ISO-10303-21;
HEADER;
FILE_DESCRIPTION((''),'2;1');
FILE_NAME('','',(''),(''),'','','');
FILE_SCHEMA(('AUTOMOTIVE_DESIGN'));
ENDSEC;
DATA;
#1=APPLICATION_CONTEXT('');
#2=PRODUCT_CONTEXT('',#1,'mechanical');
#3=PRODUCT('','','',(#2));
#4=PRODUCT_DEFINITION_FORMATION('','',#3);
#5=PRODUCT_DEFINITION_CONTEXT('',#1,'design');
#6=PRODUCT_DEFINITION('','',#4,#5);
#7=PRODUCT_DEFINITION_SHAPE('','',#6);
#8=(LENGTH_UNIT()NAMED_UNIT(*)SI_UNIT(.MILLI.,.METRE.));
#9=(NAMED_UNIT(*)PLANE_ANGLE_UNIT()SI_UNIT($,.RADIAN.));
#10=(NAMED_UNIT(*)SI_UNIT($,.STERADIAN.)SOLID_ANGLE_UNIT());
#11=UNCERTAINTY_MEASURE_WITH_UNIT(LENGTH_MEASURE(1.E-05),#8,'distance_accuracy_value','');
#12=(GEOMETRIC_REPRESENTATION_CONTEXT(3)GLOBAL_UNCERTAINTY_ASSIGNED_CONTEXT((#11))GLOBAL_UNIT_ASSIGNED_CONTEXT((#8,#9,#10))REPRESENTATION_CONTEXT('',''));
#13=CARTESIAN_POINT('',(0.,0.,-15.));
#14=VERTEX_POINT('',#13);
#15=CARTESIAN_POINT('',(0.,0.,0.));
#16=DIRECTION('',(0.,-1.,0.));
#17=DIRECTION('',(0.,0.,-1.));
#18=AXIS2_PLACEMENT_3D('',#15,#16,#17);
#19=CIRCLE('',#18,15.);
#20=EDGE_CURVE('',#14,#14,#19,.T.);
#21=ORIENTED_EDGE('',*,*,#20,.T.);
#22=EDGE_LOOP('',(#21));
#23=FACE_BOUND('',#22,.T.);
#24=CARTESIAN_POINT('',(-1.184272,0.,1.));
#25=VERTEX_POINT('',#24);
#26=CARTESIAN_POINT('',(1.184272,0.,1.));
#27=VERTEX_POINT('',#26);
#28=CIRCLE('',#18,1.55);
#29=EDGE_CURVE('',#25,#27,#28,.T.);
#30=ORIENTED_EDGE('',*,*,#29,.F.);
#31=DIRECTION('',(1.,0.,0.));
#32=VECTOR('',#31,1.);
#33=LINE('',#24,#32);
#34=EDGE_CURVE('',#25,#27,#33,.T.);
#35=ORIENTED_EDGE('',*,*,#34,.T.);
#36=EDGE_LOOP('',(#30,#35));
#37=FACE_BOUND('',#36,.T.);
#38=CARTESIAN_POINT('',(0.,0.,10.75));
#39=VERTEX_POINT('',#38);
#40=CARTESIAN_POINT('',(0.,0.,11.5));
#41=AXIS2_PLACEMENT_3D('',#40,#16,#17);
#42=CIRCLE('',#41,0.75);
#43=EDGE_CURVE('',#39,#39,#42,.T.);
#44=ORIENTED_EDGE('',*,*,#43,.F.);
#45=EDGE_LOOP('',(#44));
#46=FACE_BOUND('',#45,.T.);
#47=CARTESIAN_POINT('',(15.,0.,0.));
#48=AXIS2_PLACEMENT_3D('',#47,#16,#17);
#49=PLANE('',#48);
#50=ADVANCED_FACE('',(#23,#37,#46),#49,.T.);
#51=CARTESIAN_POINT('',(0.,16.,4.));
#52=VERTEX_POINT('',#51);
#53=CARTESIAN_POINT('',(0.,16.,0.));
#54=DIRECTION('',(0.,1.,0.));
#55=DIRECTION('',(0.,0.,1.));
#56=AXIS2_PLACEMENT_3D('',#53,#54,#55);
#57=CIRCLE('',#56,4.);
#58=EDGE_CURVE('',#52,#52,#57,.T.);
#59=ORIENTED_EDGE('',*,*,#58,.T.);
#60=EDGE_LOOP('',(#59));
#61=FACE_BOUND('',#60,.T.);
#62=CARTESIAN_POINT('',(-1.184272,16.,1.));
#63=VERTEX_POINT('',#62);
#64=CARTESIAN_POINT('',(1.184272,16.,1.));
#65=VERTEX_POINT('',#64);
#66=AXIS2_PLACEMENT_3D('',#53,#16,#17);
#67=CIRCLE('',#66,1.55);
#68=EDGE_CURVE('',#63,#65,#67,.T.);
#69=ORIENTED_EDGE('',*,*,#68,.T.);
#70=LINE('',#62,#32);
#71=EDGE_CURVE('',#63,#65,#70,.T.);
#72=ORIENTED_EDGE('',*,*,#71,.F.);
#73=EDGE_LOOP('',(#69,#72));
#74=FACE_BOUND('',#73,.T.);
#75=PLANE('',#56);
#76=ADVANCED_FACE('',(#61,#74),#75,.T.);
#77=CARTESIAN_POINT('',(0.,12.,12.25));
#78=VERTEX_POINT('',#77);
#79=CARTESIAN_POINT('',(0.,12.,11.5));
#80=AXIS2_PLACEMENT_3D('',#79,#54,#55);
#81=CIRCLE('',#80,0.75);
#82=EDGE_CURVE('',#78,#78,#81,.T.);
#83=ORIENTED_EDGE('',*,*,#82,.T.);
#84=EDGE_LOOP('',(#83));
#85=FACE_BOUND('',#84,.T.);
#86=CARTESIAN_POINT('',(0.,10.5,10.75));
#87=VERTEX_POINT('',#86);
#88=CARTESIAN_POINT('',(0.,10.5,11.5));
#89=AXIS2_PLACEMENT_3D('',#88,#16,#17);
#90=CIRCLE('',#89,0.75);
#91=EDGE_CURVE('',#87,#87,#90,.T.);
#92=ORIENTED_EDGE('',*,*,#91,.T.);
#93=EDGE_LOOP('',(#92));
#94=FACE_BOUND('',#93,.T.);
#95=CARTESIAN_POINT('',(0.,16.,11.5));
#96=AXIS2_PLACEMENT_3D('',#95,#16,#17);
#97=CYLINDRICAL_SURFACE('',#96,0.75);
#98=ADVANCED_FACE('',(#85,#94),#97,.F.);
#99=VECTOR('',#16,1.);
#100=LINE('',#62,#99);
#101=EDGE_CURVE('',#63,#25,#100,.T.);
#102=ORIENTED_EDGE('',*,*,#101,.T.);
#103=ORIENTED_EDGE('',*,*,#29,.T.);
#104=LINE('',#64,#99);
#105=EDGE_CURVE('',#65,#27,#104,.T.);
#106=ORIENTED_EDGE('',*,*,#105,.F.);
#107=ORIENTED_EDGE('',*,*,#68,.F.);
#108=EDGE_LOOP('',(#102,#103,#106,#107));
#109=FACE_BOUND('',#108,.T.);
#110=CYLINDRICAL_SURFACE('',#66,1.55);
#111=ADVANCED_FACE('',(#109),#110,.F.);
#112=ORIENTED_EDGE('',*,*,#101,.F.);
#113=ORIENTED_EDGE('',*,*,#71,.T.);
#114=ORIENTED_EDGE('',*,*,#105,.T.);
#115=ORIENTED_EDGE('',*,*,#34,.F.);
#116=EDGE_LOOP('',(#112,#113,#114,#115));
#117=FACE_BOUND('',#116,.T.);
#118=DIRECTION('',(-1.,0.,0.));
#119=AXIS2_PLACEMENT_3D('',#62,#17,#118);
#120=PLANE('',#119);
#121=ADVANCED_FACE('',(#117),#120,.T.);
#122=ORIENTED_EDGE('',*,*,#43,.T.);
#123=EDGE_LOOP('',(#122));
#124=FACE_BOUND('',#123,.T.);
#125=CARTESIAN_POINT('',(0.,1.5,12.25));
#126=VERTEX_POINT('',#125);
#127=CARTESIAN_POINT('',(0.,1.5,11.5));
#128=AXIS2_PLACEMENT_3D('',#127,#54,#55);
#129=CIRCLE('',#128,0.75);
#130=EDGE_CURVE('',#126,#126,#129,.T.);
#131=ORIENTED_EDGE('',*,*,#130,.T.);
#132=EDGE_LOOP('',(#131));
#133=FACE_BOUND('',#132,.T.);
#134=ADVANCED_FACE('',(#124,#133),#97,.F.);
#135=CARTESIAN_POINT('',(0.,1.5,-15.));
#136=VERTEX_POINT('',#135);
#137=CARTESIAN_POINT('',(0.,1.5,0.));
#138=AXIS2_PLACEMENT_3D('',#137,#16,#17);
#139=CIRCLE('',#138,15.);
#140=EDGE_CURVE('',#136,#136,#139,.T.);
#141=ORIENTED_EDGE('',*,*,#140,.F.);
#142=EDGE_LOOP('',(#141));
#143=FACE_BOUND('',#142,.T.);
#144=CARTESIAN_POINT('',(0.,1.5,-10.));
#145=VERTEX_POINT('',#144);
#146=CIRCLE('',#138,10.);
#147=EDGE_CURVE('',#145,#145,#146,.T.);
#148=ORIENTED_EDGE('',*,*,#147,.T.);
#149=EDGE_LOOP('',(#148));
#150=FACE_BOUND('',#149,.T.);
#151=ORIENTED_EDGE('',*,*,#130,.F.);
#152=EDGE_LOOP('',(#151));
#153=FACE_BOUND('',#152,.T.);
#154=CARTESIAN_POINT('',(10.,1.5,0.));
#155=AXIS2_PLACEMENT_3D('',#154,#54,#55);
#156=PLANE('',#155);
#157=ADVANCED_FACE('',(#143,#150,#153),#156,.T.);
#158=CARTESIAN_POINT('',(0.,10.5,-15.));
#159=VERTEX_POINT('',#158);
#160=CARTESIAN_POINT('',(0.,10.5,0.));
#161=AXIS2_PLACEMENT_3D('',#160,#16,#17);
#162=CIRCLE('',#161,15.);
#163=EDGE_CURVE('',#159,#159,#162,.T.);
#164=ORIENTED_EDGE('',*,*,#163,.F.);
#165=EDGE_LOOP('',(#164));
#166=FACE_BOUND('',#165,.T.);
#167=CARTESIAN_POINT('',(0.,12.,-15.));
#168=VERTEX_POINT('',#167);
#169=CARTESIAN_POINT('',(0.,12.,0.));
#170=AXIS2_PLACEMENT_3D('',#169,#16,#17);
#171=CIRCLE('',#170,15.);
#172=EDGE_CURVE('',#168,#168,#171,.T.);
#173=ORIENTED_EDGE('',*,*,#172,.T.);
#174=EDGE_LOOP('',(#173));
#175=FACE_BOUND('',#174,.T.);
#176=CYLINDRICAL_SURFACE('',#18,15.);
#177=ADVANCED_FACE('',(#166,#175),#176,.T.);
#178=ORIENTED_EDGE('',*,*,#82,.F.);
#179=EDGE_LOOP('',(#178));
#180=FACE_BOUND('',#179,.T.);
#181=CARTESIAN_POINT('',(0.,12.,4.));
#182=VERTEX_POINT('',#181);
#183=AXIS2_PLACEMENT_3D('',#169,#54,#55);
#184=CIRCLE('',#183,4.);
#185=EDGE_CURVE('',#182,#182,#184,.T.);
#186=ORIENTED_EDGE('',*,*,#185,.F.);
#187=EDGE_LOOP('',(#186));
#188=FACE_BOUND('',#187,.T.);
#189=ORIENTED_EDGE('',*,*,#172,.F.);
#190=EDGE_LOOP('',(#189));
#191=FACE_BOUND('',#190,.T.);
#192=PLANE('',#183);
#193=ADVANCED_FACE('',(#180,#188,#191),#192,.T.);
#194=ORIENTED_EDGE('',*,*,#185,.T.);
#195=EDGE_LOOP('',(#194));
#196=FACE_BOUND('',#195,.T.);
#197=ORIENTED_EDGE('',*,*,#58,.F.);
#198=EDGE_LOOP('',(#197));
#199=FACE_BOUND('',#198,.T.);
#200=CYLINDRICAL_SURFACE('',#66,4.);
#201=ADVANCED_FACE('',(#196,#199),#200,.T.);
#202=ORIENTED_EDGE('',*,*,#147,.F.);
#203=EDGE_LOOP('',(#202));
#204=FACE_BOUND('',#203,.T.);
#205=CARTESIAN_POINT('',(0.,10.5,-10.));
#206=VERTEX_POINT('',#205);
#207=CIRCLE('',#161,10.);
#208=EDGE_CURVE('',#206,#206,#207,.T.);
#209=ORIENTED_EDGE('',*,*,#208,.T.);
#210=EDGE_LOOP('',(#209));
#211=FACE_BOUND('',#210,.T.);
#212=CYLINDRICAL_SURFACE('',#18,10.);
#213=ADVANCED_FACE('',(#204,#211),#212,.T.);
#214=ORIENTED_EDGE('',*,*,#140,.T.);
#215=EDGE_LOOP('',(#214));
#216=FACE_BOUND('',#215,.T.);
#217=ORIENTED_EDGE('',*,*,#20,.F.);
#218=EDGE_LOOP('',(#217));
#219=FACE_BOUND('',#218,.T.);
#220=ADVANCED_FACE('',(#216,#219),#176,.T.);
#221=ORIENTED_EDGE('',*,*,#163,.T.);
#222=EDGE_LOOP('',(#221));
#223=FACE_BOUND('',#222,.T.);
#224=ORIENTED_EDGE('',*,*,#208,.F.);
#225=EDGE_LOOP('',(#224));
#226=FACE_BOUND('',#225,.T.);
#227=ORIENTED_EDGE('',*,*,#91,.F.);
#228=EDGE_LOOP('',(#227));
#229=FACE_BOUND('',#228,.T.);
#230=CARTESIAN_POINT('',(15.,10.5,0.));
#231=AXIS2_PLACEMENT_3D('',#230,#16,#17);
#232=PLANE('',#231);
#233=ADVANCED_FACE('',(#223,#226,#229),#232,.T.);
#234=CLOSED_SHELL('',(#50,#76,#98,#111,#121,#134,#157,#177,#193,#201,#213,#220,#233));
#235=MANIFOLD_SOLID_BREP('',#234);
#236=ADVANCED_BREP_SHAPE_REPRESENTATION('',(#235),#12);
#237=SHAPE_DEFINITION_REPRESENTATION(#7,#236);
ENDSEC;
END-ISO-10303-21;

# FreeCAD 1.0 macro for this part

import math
import FreeCAD as App
import Part
import Sketcher

V = App.Vector

doc = App.newDocument("Part")
body = doc.addObject("PartDesign::Body", "Body")

# Sketch on XY plane
sketch1 = doc.addObject("Sketcher::SketchObject", "Sketch")
body.addObject(sketch1)
sketch1.AttachmentSupport = (doc.XY_Plane, [""])
sketch1.MapMode = "FlatFace"
sketch1.addGeometry(Part.LineSegment(V(0, 12, 0), V(0, 0, 0)), False)
sketch1.addGeometry(Part.LineSegment(V(0, 0, 0), V(15, 0, 0)), False)
sketch1.addGeometry(Part.LineSegment(V(15, 0, 0), V(15, 1.5, 0)), False)
sketch1.addGeometry(Part.LineSegment(V(15, 1.5, 0), V(10, 1.5, 0)), False)
sketch1.addGeometry(Part.LineSegment(V(10, 1.5, 0), V(10, 10.5, 0)), False)
sketch1.addGeometry(Part.LineSegment(V(10, 10.5, 0), V(15, 10.5, 0)), False)
sketch1.addGeometry(Part.LineSegment(V(15, 10.5, 0), V(15, 12, 0)), False)
sketch1.addGeometry(Part.LineSegment(V(15, 12, 0), V(0, 12, 0)), False)
sketch1.addConstraint(Sketcher.Constraint("Coincident", 0, 2, 1, 1))
sketch1.addConstraint(Sketcher.Constraint("Coincident", 1, 2, 2, 1))
sketch1.addConstraint(Sketcher.Constraint("Coincident", 2, 2, 3, 1))
sketch1.addConstraint(Sketcher.Constraint("Coincident", 3, 2, 4, 1))
sketch1.addConstraint(Sketcher.Constraint("Coincident", 4, 2, 5, 1))
sketch1.addConstraint(Sketcher.Constraint("Coincident", 5, 2, 6, 1))
sketch1.addConstraint(Sketcher.Constraint("Coincident", 6, 2, 7, 1))
sketch1.addConstraint(Sketcher.Constraint("Coincident", 7, 2, 0, 1))
sketch1.addConstraint(Sketcher.Constraint("Vertical", 0))
sketch1.addConstraint(Sketcher.Constraint("Horizontal", 1))
sketch1.addConstraint(Sketcher.Constraint("Vertical", 2))
sketch1.addConstraint(Sketcher.Constraint("Horizontal", 3))
sketch1.addConstraint(Sketcher.Constraint("Vertical", 4))
sketch1.addConstraint(Sketcher.Constraint("Horizontal", 5))
sketch1.addConstraint(Sketcher.Constraint("Vertical", 6))
sketch1.addConstraint(Sketcher.Constraint("Horizontal", 7))
sketch1.addConstraint(Sketcher.Constraint("Coincident", 0, 2, -1, 1))
sketch1.addConstraint(Sketcher.Constraint("Vertical", 2, 2, 5, 2))
sketch1.addConstraint(Sketcher.Constraint("Equal", 2, 6))
sketch1.addConstraint(Sketcher.Constraint("DistanceX", 1, 1, 1, 2, 15.0))
sketch1.addConstraint(Sketcher.Constraint("DistanceX", 3, 2, 3, 1, 5.0))
sketch1.addConstraint(Sketcher.Constraint("DistanceY", 0, 2, 0, 1, 12.0))
sketch1.addConstraint(Sketcher.Constraint("DistanceY", 4, 1, 4, 2, 9.0))
revolution = doc.addObject("PartDesign::Revolution", "Revolution")
body.addObject(revolution)
revolution.Profile = sketch1
revolution.ReferenceAxis = (sketch1, ["V_Axis"])
revolution.Angle = 360

# Sketch on XZ plane
sketch2 = doc.addObject("Sketcher::SketchObject", "Sketch001")
body.addObject(sketch2)
sketch2.AttachmentSupport = (doc.XZ_Plane, [""])
sketch2.MapMode = "FlatFace"
sketch2.AttachmentOffset = App.Placement(V(0, 0, -12), App.Rotation())
sketch2.addGeometry(Part.Circle(V(0, 0, 0), V(0, 0, 1), 4), False)
sketch2.addConstraint(Sketcher.Constraint("Coincident", 0, 3, -1, 1))
sketch2.addConstraint(Sketcher.Constraint("Diameter", 0, 8.0))
pad1 = doc.addObject("PartDesign::Pad", "Pad")
body.addObject(pad1)
pad1.Profile = sketch2
pad1.Length = 4
pad1.Reversed = True

# Sketch on XZ plane
sketch3 = doc.addObject("Sketcher::SketchObject", "Sketch002")
body.addObject(sketch3)
sketch3.AttachmentSupport = (doc.XZ_Plane, [""])
sketch3.MapMode = "FlatFace"
sketch3.addGeometry(Part.LineSegment(V(1.184272, 1, 0), V(-1.184272, 1, 0)), False)
sketch3.addGeometry(Part.ArcOfCircle(Part.Circle(V(0, 0, 0), V(0, 0, 1), 1.55), math.radians(139.82223), math.radians(400.17777)), False)
sketch3.addConstraint(Sketcher.Constraint("Coincident", 0, 1, 1, 2))
sketch3.addConstraint(Sketcher.Constraint("Coincident", 1, 1, 0, 2))
sketch3.addConstraint(Sketcher.Constraint("Horizontal", 0))
sketch3.addConstraint(Sketcher.Constraint("Coincident", 1, 3, -1, 1))
sketch3.addConstraint(Sketcher.Constraint("Radius", 1, 1.55))
sketch3.addConstraint(Sketcher.Constraint("DistanceY", -1, 1, 0, 1, 1.0))
pocket1 = doc.addObject("PartDesign::Pocket", "Pocket")
body.addObject(pocket1)
pocket1.Profile = sketch3
pocket1.Length = 16

# Sketch on XZ plane
sketch4 = doc.addObject("Sketcher::SketchObject", "Sketch003")
body.addObject(sketch4)
sketch4.AttachmentSupport = (doc.XZ_Plane, [""])
sketch4.MapMode = "FlatFace"
sketch4.addGeometry(Part.Circle(V(0, 11.5, 0), V(0, 0, 1), 0.75), False)
sketch4.addConstraint(Sketcher.Constraint("PointOnObject", 0, 3, -2))
sketch4.addConstraint(Sketcher.Constraint("Diameter", 0, 1.5))
sketch4.addConstraint(Sketcher.Constraint("DistanceY", -1, 1, 0, 3, 11.5))
pocket2 = doc.addObject("PartDesign::Pocket", "Pocket001")
body.addObject(pocket2)
pocket2.Profile = sketch4
pocket2.Length = 16

doc.recompute()
